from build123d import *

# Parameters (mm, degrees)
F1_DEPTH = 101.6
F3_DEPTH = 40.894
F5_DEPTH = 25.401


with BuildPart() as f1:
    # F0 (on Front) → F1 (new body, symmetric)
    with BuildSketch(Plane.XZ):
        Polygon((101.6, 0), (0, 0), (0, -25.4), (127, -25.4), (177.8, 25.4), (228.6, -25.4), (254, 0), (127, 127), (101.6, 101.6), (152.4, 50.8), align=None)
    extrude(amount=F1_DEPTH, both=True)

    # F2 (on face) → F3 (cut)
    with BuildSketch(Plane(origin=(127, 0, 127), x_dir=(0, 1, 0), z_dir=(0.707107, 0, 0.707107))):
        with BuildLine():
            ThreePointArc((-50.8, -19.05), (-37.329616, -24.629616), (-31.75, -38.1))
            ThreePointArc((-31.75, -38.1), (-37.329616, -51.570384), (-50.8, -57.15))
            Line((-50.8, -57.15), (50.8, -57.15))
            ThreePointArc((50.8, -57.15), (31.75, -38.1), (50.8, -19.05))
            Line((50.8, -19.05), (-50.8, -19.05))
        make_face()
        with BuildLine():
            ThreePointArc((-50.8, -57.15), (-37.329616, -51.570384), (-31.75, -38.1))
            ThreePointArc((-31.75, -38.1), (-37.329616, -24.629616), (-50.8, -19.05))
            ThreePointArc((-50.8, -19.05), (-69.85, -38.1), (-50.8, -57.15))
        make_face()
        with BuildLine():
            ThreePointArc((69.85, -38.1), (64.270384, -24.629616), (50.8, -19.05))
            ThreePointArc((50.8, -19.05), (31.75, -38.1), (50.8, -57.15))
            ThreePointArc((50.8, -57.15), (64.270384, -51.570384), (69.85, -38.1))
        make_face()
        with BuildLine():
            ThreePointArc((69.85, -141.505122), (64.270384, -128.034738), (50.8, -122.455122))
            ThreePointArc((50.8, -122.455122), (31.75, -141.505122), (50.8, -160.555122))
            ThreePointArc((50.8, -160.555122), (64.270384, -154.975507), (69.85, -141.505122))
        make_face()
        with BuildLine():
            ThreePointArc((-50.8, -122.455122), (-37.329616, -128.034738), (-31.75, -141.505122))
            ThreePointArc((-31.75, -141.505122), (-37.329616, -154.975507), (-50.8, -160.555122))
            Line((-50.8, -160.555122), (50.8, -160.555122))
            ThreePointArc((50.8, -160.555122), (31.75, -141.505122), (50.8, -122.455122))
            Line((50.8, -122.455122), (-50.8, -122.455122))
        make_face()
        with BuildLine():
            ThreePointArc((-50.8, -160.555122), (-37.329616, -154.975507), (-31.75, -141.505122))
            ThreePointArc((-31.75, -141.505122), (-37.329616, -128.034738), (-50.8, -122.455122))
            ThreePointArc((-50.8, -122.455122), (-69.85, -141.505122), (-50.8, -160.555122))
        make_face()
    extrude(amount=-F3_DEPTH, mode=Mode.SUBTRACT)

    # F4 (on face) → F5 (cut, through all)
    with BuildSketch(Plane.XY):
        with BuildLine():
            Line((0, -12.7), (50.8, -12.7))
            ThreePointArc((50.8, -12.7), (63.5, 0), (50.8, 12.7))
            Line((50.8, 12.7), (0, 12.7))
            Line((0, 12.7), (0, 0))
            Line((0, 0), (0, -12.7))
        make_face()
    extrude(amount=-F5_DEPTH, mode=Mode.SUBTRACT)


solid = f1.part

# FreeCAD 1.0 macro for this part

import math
import FreeCAD as App
import Part
import Sketcher
Q = App.Units.Quantity

doc = App.newDocument("Part")
body = doc.addObject("PartDesign::Body", "Body")

# Sketch on XZ plane
sketch1 = doc.addObject("Sketcher::SketchObject", "Sketch")
body.addObject(sketch1)
sketch1.AttachmentSupport = (doc.XZ_Plane, [""])
sketch1.MapMode = "FlatFace"
sketch1.addGeometry([
    Part.LineSegment(App.Vector(102, 0, 0), App.Vector(0, 0, 0)),  # 0
    Part.LineSegment(App.Vector(0, 0, 0), App.Vector(0, -25, 0)),  # 1
    Part.LineSegment(App.Vector(0, -25, 0), App.Vector(127, -25, 0)),  # 2
    Part.LineSegment(App.Vector(127, -25, 0), App.Vector(178, 25, 0)),  # 3
    Part.LineSegment(App.Vector(178, 25, 0), App.Vector(229, -25, 0)),  # 4
    Part.LineSegment(App.Vector(229, -25, 0), App.Vector(254, 0, 0)),  # 5
    Part.LineSegment(App.Vector(254, 0, 0), App.Vector(127, 127, 0)),  # 6
    Part.LineSegment(App.Vector(127, 127, 0), App.Vector(102, 102, 0)),  # 7
    Part.LineSegment(App.Vector(102, 102, 0), App.Vector(152, 51, 0)),  # 8
    Part.LineSegment(App.Vector(152, 51, 0), App.Vector(102, 0, 0)),  # 9
], False)
sketch1.addConstraint([
    Sketcher.Constraint("Coincident", 0, 2, 1, 1),
    Sketcher.Constraint("Coincident", 1, 2, 2, 1),
    Sketcher.Constraint("Coincident", 2, 2, 3, 1),
    Sketcher.Constraint("Coincident", 3, 2, 4, 1),
    Sketcher.Constraint("Coincident", 4, 2, 5, 1),
    Sketcher.Constraint("Coincident", 5, 2, 6, 1),
    Sketcher.Constraint("Coincident", 6, 2, 7, 1),
    Sketcher.Constraint("Coincident", 7, 2, 8, 1),
    Sketcher.Constraint("Coincident", 8, 2, 9, 1),
    Sketcher.Constraint("Coincident", 9, 2, 0, 1),
    Sketcher.Constraint("Horizontal", 0),
    Sketcher.Constraint("Vertical", 1),
    Sketcher.Constraint("Horizontal", 2),
    Sketcher.Constraint("Coincident", 0, 2, -1, 1),
    Sketcher.Constraint("PointOnObject", 5, 2, -1),
    Sketcher.Constraint("Perpendicular", 3, 4),
    Sketcher.Constraint("Perpendicular", 4, 5),
    Sketcher.Constraint("Perpendicular", 5, 6),
    Sketcher.Constraint("Perpendicular", 6, 7),
    Sketcher.Constraint("Perpendicular", 7, 8),
    Sketcher.Constraint("Perpendicular", 8, 9),
    Sketcher.Constraint("Horizontal", 2, 2, 4, 2),
    Sketcher.Constraint("Vertical", 2, 2, 6, 2),
    Sketcher.Constraint("Vertical", 7, 2, 9, 2),
    Sketcher.Constraint("Equal", 3, 4),
    Sketcher.Constraint("Equal", 5, 7),
    Sketcher.Constraint("DistanceX", 0, 2, 0, 1, Q("4 in")),
    Sketcher.Constraint("DistanceX", 2, 1, 2, 2, Q("5 in")),
    Sketcher.Constraint("DistanceX", -1, 1, 3, 2, Q("7 in")),
])
pad1 = doc.addObject("PartDesign::Pad", "Pad")
body.addObject(pad1)
pad1.Profile = sketch1
pad1.Length = Q("8 in")
pad1.Midplane = True

# Sketch on an angled plane
sketch2 = doc.addObject("Sketcher::SketchObject", "Sketch001")
body.addObject(sketch2)
sketch2.Placement = App.Placement(App.Vector(127, 0, 127), App.Rotation(App.Vector(0, 1, 0), App.Vector(-0.707106781, 0, 0.707106781), App.Vector(0.707106781, 0, 0.707106781), "ZXY"))
sketch2.addGeometry([
    Part.LineSegment(App.Vector(-51, -57, 0), App.Vector(51, -57, 0)),  # 0
    Part.ArcOfCircle(Part.Circle(App.Vector(51, -38, 0), App.Vector(0, 0, 1), 19), math.radians(-90), math.radians(0)),  # 1
    Part.ArcOfCircle(Part.Circle(App.Vector(51, -38, 0), App.Vector(0, 0, 1), 19), math.radians(0), math.radians(90)),  # 2
    Part.LineSegment(App.Vector(51, -19, 0), App.Vector(-51, -19, 0)),  # 3
    Part.ArcOfCircle(Part.Circle(App.Vector(-51, -38, 0), App.Vector(0, 0, 1), 19), math.radians(90), math.radians(270)),  # 4
    Part.ArcOfCircle(Part.Circle(App.Vector(51, -142, 0), App.Vector(0, 0, 1), 19), math.radians(0), math.radians(90)),  # 5
    Part.LineSegment(App.Vector(51, -122, 0), App.Vector(-51, -122, 0)),  # 6
    Part.ArcOfCircle(Part.Circle(App.Vector(-51, -142, 0), App.Vector(0, 0, 1), 19), math.radians(90), math.radians(270)),  # 7
    Part.LineSegment(App.Vector(-51, -161, 0), App.Vector(51, -161, 0)),  # 8
    Part.ArcOfCircle(Part.Circle(App.Vector(51, -142, 0), App.Vector(0, 0, 1), 19), math.radians(-90), math.radians(0)),  # 9
], False)
sketch2.addConstraint([
    Sketcher.Constraint("Tangent", 0, 2, 1, 1),
    Sketcher.Constraint("Tangent", 1, 2, 2, 1),
    Sketcher.Constraint("Tangent", 2, 2, 3, 1),
    Sketcher.Constraint("Tangent", 3, 2, 4, 1),
    Sketcher.Constraint("Tangent", 4, 2, 0, 1),
    Sketcher.Constraint("Tangent", 5, 2, 6, 1),
    Sketcher.Constraint("Tangent", 6, 2, 7, 1),
    Sketcher.Constraint("Tangent", 7, 2, 8, 1),
    Sketcher.Constraint("Tangent", 8, 2, 9, 1),
    Sketcher.Constraint("Tangent", 9, 2, 5, 1),
    Sketcher.Constraint("Horizontal", 0),
    Sketcher.Constraint("Horizontal", 3),
    Sketcher.Constraint("Horizontal", 6),
    Sketcher.Constraint("Horizontal", 8),
    Sketcher.Constraint("Equal", 1, 2),
    Sketcher.Constraint("Equal", 4, 5),
    Sketcher.Constraint("Equal", 5, 7),
    Sketcher.Constraint("Horizontal", 4, 3, 1, 2),
    Sketcher.Constraint("Horizontal", 7, 3, 9, 2),
    Sketcher.Constraint("Vertical", 2, 3, 5, 3),
    Sketcher.Constraint("Vertical", 4, 3, 7, 3),
    Sketcher.Constraint("DistanceX", 0, 1, 0, 2, Q("4 in")),
    Sketcher.Constraint("Radius", 1, Q("0.75 in")),
    Sketcher.Constraint("DistanceX", -1, 1, 1, 3, Q("2 in")),
    Sketcher.Constraint("DistanceY", 1, 3, -1, 1, Q("1.5 in")),
    Sketcher.Constraint("DistanceY", 7, 3, -1, 1, 141.505122),
])
pocket1 = doc.addObject("PartDesign::Pocket", "Pocket")
body.addObject(pocket1)
pocket1.Profile = sketch2
pocket1.Length = Q("1.61 in")

# Sketch on XY plane
sketch3 = doc.addObject("Sketcher::SketchObject", "Sketch002")
body.addObject(sketch3)
sketch3.AttachmentSupport = (doc.XY_Plane, [""])
sketch3.MapMode = "FlatFace"
sketch3.addGeometry([
    Part.LineSegment(App.Vector(0, -13, 0), App.Vector(51, -13, 0)),
    Part.ArcOfCircle(Part.Circle(App.Vector(51, 0, 0), App.Vector(0, 0, 1), 13), math.radians(-90), math.radians(90)),
    Part.LineSegment(App.Vector(51, 13, 0), App.Vector(0, 13, 0)),
    Part.LineSegment(App.Vector(0, 13, 0), App.Vector(0, -13, 0)),
], False)
sketch3.addConstraint([
    Sketcher.Constraint("Tangent", 0, 2, 1, 1),
    Sketcher.Constraint("Tangent", 1, 2, 2, 1),
    Sketcher.Constraint("Coincident", 2, 2, 3, 1),
    Sketcher.Constraint("Coincident", 3, 2, 0, 1),
    Sketcher.Constraint("Horizontal", 0),
    Sketcher.Constraint("Horizontal", 2),
    Sketcher.Constraint("Vertical", 3),
    Sketcher.Constraint("Symmetric", 2, 2, 3, 2, -1, 1),
    Sketcher.Constraint("Radius", 1, Q("0.5 in")),
    Sketcher.Constraint("DistanceX", 0, 1, 0, 2, Q("2 in")),
])
pocket2 = doc.addObject("PartDesign::Pocket", "Pocket001")
body.addObject(pocket2)
pocket2.Profile = sketch3
pocket2.Type = "ThroughAll"

doc.recompute()
